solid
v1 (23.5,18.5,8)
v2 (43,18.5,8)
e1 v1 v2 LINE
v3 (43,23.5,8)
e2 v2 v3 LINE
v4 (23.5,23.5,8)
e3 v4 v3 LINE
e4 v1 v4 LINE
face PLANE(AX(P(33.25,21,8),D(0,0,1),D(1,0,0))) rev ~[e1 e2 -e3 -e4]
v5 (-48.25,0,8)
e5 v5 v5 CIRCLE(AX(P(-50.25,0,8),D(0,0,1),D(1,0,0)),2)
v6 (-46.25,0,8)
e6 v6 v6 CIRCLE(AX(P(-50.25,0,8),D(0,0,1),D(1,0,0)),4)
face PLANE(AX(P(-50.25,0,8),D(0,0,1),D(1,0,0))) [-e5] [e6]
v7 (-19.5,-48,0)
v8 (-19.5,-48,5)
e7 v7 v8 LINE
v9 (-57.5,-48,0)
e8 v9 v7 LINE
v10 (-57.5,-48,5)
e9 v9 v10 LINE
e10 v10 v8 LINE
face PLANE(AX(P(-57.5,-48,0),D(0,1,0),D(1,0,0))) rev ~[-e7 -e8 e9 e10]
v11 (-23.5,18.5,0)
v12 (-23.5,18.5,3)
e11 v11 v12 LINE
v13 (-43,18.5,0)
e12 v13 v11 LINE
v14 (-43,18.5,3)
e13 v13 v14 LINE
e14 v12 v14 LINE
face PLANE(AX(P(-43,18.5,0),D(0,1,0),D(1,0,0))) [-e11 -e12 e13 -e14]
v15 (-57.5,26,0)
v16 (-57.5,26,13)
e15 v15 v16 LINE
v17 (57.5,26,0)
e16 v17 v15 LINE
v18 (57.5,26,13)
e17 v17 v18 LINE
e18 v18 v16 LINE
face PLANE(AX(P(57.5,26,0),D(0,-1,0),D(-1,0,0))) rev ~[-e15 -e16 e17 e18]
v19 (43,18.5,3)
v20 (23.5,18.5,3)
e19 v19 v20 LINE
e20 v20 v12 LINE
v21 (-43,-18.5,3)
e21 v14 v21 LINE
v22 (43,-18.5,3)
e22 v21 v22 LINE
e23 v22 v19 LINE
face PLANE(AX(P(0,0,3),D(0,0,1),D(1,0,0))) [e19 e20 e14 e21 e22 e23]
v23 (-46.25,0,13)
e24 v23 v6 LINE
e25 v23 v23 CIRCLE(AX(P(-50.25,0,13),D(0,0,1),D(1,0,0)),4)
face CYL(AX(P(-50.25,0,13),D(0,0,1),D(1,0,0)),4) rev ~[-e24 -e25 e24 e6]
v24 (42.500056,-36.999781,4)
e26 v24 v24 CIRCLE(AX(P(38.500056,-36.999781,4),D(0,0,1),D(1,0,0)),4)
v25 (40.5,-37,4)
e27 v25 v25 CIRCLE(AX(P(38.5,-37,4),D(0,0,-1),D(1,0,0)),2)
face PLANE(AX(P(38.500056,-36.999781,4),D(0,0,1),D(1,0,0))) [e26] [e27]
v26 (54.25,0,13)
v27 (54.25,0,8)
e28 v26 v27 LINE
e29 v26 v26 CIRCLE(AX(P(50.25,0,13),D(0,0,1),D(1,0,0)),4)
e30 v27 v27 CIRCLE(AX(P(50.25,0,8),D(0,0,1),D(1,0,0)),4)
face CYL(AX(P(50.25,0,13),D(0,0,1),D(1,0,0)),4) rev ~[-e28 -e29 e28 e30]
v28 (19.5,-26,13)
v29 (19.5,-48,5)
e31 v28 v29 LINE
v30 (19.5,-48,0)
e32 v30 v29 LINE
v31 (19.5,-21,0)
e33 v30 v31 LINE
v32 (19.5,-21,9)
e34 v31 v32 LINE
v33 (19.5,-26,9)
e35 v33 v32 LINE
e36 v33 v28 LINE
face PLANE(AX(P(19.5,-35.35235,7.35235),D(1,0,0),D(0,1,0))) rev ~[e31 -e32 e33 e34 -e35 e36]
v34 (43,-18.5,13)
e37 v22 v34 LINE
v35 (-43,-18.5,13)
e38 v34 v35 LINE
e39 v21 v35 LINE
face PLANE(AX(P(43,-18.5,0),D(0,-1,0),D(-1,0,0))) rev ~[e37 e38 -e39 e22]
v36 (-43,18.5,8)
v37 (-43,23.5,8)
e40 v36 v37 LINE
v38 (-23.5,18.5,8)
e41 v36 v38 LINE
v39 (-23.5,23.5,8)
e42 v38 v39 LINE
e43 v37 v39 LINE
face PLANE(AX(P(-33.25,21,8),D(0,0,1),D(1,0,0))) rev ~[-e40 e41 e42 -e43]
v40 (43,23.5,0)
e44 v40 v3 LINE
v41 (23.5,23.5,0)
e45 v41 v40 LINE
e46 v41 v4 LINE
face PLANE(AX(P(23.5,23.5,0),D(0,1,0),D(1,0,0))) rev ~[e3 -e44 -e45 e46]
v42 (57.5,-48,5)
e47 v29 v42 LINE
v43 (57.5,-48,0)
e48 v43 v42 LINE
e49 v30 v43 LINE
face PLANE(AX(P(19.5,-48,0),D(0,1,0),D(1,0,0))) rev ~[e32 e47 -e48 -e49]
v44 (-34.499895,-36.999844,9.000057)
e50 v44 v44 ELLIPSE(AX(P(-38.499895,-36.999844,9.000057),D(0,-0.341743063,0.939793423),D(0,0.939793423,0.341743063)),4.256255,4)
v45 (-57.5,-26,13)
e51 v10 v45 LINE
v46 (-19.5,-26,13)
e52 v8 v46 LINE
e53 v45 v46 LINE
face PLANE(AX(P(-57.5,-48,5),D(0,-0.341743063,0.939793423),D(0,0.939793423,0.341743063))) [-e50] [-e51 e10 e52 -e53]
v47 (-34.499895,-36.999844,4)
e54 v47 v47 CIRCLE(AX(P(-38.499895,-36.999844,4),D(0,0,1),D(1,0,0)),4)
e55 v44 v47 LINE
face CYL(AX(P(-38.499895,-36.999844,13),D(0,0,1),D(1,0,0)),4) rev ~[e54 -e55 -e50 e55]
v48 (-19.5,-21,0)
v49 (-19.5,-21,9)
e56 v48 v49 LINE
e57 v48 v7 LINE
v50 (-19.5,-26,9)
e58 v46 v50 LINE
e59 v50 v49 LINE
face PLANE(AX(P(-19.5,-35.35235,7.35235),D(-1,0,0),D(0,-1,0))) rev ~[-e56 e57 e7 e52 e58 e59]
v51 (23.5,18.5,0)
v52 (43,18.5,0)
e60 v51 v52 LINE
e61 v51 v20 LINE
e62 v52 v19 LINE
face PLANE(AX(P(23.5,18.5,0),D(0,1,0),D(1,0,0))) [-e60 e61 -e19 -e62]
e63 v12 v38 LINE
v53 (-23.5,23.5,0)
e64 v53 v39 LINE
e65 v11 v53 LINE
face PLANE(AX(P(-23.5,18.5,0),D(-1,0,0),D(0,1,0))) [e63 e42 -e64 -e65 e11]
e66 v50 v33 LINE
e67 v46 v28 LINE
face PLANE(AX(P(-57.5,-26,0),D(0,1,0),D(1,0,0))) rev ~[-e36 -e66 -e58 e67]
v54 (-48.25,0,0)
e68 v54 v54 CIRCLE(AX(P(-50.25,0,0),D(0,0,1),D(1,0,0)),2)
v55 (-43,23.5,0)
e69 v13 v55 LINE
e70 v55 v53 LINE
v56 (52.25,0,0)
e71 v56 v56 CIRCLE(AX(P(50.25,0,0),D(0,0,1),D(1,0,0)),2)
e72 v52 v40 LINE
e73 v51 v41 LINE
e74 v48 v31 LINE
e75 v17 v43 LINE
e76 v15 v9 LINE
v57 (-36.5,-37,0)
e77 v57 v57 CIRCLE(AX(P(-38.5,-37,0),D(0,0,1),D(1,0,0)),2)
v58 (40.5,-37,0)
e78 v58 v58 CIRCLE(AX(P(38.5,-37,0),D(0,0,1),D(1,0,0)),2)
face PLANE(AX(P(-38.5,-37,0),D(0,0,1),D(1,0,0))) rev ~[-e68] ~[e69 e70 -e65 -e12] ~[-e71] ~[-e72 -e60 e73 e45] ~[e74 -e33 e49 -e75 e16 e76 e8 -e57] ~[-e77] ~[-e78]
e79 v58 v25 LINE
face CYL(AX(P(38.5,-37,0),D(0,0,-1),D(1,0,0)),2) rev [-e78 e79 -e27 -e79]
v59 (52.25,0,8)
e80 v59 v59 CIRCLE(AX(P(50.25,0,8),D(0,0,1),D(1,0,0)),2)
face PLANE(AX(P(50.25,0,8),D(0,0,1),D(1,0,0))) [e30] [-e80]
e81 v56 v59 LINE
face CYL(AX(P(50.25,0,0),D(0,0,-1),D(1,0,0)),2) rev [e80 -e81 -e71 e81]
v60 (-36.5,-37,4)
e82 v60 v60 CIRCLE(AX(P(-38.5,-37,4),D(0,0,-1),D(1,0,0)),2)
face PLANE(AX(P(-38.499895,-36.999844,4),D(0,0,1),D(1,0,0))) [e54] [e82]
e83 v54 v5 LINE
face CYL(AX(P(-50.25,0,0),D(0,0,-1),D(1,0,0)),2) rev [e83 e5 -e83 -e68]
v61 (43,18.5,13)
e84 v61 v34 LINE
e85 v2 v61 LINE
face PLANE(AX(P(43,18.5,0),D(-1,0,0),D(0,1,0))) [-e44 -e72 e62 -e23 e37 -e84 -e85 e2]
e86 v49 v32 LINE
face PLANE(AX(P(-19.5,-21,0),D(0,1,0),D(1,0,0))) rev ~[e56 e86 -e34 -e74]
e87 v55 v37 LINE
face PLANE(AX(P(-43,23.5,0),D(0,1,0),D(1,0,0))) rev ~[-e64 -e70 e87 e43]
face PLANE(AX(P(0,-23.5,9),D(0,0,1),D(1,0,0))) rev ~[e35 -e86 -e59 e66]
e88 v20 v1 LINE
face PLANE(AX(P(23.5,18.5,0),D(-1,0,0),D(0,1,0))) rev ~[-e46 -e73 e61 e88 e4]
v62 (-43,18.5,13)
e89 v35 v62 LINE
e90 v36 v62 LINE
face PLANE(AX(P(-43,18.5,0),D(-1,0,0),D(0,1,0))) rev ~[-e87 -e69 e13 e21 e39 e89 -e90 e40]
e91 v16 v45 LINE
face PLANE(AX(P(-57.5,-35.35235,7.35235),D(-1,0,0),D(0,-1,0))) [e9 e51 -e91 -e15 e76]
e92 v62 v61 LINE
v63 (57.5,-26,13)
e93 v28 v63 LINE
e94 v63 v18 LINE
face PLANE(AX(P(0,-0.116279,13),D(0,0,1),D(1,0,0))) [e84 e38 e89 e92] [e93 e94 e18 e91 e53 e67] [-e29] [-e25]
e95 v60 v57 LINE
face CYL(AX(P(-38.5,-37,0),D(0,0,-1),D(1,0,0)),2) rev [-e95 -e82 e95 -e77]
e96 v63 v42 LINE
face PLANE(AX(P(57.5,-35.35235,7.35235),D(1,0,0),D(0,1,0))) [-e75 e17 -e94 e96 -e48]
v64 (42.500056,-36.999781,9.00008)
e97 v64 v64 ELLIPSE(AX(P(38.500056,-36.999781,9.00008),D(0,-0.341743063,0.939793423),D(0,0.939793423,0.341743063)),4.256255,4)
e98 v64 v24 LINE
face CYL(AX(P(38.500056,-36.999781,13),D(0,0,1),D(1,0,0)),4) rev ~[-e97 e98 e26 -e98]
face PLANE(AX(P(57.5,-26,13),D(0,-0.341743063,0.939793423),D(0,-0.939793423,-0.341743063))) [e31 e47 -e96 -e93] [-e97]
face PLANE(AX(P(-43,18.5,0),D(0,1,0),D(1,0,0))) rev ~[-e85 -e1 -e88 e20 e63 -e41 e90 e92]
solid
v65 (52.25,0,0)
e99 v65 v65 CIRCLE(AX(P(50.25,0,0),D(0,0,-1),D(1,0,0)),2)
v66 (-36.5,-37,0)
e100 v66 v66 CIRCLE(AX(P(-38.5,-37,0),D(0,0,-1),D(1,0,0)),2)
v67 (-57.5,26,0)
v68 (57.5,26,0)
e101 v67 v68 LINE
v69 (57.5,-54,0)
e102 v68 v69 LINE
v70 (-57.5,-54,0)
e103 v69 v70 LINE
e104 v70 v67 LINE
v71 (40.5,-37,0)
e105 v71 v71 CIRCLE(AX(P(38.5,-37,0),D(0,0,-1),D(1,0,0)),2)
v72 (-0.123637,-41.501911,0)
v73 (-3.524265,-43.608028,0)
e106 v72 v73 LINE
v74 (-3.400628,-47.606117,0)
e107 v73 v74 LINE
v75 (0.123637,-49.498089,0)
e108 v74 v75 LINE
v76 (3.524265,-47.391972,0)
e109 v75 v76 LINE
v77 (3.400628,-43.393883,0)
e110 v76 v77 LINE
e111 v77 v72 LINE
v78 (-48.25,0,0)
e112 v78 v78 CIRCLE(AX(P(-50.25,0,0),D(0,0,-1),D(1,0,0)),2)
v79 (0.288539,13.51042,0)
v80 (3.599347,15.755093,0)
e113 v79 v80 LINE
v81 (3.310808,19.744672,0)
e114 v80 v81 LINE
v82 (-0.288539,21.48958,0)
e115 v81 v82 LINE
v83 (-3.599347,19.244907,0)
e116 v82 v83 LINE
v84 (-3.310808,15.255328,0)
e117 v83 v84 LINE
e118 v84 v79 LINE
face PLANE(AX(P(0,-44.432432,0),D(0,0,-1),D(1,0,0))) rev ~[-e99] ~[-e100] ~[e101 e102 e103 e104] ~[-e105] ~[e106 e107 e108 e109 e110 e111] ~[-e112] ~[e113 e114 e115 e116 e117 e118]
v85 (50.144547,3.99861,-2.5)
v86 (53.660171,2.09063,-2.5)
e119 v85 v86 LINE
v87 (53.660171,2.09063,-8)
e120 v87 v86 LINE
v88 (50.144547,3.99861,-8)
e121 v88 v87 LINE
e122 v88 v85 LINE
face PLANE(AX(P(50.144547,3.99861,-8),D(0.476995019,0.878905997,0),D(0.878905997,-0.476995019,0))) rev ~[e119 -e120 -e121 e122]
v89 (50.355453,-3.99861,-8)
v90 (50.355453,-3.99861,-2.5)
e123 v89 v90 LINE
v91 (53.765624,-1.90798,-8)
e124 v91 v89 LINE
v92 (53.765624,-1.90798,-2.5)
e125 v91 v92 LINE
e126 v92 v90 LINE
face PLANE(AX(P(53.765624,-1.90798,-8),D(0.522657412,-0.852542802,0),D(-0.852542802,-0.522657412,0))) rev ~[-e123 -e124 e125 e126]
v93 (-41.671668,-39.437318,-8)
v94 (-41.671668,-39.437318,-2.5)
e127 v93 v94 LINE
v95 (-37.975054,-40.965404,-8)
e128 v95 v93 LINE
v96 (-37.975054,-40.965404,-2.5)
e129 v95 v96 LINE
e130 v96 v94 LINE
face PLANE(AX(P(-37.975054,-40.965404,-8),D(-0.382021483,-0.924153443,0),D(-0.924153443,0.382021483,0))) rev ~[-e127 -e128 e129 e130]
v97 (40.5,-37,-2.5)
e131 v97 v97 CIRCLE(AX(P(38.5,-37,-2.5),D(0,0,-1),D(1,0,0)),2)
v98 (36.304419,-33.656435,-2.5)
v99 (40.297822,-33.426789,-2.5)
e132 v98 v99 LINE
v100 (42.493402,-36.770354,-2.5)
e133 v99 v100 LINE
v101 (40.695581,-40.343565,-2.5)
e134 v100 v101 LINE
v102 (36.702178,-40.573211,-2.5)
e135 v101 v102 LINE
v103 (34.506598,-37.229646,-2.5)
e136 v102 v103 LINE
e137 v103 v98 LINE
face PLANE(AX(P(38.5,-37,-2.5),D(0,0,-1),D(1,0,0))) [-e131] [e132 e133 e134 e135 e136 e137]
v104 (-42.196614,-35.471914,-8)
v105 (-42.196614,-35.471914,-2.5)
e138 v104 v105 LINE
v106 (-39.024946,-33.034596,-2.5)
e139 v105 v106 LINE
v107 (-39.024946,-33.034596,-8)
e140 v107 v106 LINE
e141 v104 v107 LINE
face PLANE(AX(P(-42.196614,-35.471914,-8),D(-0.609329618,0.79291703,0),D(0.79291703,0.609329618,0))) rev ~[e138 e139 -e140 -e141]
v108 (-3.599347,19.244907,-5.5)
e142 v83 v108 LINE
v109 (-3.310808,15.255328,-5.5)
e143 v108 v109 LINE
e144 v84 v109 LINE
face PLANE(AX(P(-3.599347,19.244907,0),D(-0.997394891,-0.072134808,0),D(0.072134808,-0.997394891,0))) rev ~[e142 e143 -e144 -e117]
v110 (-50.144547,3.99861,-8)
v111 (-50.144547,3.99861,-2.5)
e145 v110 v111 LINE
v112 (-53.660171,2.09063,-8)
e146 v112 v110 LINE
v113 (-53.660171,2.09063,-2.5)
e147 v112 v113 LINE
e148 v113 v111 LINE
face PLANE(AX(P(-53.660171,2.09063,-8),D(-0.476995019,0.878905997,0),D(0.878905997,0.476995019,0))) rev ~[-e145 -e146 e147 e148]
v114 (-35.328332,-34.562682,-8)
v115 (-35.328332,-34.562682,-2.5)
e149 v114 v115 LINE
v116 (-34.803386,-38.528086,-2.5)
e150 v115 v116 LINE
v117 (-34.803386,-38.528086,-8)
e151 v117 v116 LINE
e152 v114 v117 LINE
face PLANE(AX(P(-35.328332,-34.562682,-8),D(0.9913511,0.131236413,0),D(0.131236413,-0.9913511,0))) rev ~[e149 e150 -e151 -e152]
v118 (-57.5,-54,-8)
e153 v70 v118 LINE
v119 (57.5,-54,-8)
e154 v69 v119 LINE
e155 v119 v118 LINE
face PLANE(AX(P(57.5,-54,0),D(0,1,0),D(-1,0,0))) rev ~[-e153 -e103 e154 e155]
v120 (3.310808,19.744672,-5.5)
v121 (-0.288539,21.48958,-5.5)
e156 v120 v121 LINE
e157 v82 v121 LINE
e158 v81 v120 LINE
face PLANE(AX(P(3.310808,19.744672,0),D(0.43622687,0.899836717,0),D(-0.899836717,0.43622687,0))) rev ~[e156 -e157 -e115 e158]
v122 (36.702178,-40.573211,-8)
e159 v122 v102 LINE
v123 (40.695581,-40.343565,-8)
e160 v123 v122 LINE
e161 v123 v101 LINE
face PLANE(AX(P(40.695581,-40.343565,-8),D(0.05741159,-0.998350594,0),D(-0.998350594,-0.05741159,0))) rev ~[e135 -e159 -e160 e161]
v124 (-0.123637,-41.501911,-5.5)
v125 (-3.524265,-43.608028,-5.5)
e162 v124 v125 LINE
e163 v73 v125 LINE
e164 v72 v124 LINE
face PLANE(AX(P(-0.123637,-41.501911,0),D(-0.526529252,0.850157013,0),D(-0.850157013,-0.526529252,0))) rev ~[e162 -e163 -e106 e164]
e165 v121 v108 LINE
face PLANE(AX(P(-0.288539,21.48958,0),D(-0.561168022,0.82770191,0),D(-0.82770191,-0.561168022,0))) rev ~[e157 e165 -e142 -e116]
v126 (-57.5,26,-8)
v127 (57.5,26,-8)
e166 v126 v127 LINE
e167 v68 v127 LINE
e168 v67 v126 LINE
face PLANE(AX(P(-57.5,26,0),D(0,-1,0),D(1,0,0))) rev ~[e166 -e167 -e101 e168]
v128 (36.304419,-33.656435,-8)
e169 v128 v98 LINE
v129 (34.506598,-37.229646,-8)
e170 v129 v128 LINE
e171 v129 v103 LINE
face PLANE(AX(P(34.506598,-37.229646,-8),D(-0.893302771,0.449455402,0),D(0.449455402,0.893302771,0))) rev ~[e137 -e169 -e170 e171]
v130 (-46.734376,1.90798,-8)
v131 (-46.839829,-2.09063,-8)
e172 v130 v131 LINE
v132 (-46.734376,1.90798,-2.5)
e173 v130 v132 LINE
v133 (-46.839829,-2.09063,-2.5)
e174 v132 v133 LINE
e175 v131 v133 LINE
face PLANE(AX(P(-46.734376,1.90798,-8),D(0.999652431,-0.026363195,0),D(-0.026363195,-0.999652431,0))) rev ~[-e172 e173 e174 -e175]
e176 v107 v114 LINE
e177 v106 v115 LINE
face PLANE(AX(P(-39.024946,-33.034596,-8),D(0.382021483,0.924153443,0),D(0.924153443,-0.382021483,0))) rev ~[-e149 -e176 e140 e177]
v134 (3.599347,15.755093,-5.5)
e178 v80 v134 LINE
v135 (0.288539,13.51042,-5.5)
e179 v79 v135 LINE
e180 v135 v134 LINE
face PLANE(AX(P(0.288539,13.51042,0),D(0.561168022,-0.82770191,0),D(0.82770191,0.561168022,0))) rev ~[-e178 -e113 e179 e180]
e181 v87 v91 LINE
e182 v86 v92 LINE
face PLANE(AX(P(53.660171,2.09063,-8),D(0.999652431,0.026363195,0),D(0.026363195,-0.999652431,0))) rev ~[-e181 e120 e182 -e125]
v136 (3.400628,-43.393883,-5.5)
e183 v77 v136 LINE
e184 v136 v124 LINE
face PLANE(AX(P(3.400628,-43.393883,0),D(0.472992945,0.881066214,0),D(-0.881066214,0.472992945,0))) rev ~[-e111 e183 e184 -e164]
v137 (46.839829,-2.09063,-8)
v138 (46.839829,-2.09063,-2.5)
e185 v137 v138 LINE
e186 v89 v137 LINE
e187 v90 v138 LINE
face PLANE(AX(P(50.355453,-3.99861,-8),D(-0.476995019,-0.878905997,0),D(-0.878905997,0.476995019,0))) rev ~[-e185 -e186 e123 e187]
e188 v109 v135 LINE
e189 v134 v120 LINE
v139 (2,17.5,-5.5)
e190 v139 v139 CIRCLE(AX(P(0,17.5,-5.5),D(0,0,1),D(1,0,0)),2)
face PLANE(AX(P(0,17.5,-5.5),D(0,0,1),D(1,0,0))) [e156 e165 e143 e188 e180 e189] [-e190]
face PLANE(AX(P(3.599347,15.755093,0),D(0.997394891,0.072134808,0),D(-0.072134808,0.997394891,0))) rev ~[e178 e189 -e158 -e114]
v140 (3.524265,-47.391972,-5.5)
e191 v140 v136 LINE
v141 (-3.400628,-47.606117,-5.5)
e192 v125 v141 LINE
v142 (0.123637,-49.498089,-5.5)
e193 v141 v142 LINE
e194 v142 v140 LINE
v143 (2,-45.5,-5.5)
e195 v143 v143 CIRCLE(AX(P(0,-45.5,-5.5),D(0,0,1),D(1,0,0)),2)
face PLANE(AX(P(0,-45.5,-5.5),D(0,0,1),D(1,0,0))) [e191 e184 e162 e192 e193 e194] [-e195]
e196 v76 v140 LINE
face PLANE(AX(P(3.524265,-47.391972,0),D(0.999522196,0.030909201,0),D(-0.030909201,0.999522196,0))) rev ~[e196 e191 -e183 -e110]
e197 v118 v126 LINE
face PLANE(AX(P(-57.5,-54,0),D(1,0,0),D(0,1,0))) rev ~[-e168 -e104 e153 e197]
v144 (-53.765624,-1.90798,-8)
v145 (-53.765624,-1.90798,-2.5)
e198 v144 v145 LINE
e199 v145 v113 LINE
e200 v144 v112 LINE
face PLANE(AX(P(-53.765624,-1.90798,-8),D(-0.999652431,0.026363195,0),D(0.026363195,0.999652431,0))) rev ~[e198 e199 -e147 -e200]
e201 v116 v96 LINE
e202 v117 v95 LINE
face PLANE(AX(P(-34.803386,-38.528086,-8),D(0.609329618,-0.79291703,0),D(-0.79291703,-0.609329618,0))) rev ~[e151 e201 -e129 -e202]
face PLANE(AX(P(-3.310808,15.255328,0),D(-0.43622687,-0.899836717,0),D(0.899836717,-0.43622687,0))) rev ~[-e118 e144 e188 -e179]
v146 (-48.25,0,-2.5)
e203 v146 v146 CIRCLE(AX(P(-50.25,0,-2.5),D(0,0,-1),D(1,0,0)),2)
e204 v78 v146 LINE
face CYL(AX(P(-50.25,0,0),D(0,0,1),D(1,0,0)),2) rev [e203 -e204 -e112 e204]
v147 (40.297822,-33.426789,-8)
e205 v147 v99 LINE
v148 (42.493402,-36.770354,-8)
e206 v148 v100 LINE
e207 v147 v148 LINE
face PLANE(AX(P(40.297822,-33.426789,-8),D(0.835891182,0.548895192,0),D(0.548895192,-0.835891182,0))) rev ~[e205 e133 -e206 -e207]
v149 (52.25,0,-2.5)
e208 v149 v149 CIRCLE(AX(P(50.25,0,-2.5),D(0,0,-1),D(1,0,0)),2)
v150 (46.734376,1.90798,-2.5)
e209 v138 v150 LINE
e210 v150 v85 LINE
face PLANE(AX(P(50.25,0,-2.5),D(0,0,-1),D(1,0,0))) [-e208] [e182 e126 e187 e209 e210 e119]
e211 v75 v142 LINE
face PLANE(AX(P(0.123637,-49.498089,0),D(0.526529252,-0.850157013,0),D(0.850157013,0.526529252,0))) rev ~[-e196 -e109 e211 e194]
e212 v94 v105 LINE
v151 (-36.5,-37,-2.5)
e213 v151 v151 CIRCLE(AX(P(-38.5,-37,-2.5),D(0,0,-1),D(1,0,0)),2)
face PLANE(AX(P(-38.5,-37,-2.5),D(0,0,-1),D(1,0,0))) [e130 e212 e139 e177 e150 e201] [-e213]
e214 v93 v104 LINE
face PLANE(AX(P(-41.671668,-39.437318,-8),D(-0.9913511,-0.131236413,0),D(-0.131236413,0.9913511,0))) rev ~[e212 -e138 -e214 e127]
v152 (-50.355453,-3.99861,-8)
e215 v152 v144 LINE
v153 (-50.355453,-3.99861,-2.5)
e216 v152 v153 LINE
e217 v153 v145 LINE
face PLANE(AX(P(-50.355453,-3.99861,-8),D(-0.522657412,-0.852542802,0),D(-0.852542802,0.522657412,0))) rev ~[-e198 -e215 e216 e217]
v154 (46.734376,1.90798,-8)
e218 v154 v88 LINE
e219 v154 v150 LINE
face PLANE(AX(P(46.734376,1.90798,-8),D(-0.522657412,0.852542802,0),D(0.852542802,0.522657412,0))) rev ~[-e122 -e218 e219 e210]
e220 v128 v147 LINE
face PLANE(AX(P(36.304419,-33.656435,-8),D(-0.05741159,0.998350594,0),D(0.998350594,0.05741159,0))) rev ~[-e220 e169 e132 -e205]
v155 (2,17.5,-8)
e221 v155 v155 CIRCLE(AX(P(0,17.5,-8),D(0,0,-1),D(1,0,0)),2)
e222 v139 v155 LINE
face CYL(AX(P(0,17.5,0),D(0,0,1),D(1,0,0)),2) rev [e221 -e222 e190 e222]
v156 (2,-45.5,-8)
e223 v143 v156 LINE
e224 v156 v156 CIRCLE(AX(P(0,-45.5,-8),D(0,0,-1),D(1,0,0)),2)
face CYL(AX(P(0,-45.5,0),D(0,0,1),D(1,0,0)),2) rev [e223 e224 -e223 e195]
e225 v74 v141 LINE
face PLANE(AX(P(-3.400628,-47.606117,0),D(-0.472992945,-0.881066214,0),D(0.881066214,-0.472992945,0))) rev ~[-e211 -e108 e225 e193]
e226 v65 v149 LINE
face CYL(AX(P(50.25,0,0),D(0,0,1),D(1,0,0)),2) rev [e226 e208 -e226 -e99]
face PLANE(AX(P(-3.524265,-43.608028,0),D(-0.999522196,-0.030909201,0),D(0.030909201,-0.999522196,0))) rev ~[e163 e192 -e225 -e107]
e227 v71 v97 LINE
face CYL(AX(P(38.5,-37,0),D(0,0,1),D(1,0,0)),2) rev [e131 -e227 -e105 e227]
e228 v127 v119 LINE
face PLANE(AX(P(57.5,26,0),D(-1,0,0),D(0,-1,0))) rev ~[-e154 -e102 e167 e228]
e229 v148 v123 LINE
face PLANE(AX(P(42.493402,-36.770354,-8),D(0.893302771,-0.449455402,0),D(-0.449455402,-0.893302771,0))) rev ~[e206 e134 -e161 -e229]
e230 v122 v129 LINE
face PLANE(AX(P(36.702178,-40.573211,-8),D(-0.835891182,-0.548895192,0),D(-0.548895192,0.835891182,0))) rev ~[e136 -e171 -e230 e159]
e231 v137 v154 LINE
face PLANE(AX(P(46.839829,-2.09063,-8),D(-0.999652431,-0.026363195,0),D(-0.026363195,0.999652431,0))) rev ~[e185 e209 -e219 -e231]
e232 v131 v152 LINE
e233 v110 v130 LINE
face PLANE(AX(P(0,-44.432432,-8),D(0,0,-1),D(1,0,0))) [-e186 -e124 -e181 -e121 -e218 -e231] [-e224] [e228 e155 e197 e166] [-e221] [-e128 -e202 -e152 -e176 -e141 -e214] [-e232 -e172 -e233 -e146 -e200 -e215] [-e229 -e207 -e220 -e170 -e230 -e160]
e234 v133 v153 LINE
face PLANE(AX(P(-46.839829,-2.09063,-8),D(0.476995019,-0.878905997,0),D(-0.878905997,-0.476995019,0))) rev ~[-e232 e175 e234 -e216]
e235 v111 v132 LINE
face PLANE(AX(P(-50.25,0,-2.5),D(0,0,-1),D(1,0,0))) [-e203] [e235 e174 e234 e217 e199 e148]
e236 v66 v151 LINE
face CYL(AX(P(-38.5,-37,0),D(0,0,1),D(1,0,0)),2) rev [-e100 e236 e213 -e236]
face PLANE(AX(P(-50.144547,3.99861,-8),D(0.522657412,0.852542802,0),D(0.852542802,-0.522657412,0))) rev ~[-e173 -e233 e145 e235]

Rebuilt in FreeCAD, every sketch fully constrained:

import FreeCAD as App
import Part
import Sketcher

V = App.Vector
Q = App.Units.Quantity

doc = App.newDocument("Part")
params = doc.addObject("Spreadsheet::Sheet", "Params")
for row, (alias, value) in enumerate([
    ("sketch1_diameter", "4 mm"),
    ("sketch1_width", "115 mm"),
    ("sketch1_width2", "86 mm"),
    ("sketch1_height", "52 mm"),
    ("sketch1_height2", "37 mm"),
    ("pad1_length", "13 mm"),
    ("sketch2_width", "86 mm"),
    ("sketch2_height", "37 mm"),
    ("pad2_length", "3 mm"),
    ("sketch3_height", "5 mm"),
    ("sketch3_width", "19.5 mm"),
    ("pocket1_length", "8 mm"),
    ("sketch4_diameter", "4 mm"),
    ("sketch4_width", "38 mm"),
    ("sketch4_height", "22 mm"),
    ("pad3_length", "5 mm"),
    ("sketch5_width", "39 mm"),
    ("sketch5_height", "5 mm"),
    ("pocket2_length", "9 mm"),
    ("sketch6_width", "22 mm"),
    ("sketch6_height", "8 mm"),
    ("pad4_length", "38 mm"),
    ("sketch7_width", "22 mm"),
    ("sketch7_height", "8 mm"),
    ("pad5_length", "38 mm"),
    ("sketch8_diameter", "8 mm"),
    ("sketch8_diameter2", "4 mm"),
    ("pocket3_length", "5 mm"),
    ("sketch9_diameter", "4 mm"),
    ("pocket4_length", "25 mm"),
    ("sketch10_diameter", "8 mm"),
    ("pocket5_length", "9 mm"),
    ("sketch11_diameter", "4 mm"),
    ("sketch11_width", "115 mm"),
    ("sketch11_height", "80 mm"),
    ("pad6_length", "8 mm"),
    ("sketch12_diameter", "4 mm"),
    ("sketch12_length", "4 mm"),
    ("pocket6_length", "5.5 mm"),
    ("sketch13_diameter", "4 mm"),
    ("sketch13_length", "4 mm"),
    ("pocket7_length", "5.5 mm"),
], start=1):
    params.set(f"A{row}", alias)
    params.set(f"B{row}", "=" + value)
    params.setAlias(f"B{row}", alias)

body = doc.addObject("PartDesign::Body", "Body")

# Sketch on XY plane
sketch1 = doc.addObject("Sketcher::SketchObject", "Sketch")
body.addObject(sketch1)
sketch1.AttachmentSupport = (doc.XY_Plane, [""])
sketch1.MapMode = "FlatFace"
sketch1.addGeometry([
    Part.LineSegment(V(57.5, -26, 0), V(57.5, 26, 0)),  # 0
    Part.LineSegment(V(57.5, 26, 0), V(-57.5, 26, 0)),  # 1
    Part.LineSegment(V(-57.5, 26, 0), V(-57.5, -26, 0)),  # 2
    Part.LineSegment(V(-57.5, -26, 0), V(57.5, -26, 0)),  # 3
    Part.Circle(V(-50.2, 0, 0), V(0, 0, 1), 2),  # 4
    Part.Circle(V(50.2, 0, 0), V(0, 0, 1), 2),  # 5
    Part.LineSegment(V(43, 18.5, 0), V(43, -18.5, 0)),  # 6
    Part.LineSegment(V(43, -18.5, 0), V(-43, -18.5, 0)),  # 7
    Part.LineSegment(V(-43, -18.5, 0), V(-43, 18.5, 0)),  # 8
    Part.LineSegment(V(-43, 18.5, 0), V(43, 18.5, 0)),  # 9
], False)
sketch1.addConstraint([
    Sketcher.Constraint("Coincident", 0, 2, 1, 1),
    Sketcher.Constraint("Coincident", 1, 2, 2, 1),
    Sketcher.Constraint("Coincident", 2, 2, 3, 1),
    Sketcher.Constraint("Coincident", 3, 2, 0, 1),
    Sketcher.Constraint("Coincident", 6, 2, 7, 1),
    Sketcher.Constraint("Coincident", 7, 2, 8, 1),
    Sketcher.Constraint("Coincident", 8, 2, 9, 1),
    Sketcher.Constraint("Coincident", 9, 2, 6, 1),
    Sketcher.Constraint("Vertical", 0),
    Sketcher.Constraint("Horizontal", 1),
    Sketcher.Constraint("Vertical", 2),
    Sketcher.Constraint("Horizontal", 3),
    Sketcher.Constraint("Vertical", 6),
    Sketcher.Constraint("Horizontal", 7),
    Sketcher.Constraint("Vertical", 8),
    Sketcher.Constraint("Horizontal", 9),
    Sketcher.Constraint("Equal", 4, 5),
    Sketcher.Constraint("Symmetric", 4, 3, 5, 3, -1, 1),
    Sketcher.Constraint("Symmetric", 0, 2, 2, 2, -1, 1),
    Sketcher.Constraint("Symmetric", 6, 2, 8, 2, -1, 1),
    Sketcher.Constraint("PointOnObject", 4, 3, -1),
    Sketcher.Constraint("Diameter", 4, Q("4 mm")),
    Sketcher.Constraint("DistanceX", 1, 2, 1, 1, Q("115 mm")),
    Sketcher.Constraint("DistanceX", 7, 2, 7, 1, Q("86 mm")),
    Sketcher.Constraint("DistanceY", 0, 1, 0, 2, Q("52 mm")),
    Sketcher.Constraint("DistanceY", 6, 2, 6, 1, Q("37 mm")),
    Sketcher.Constraint("DistanceX", 4, 3, 5, 3, Q("100.5 mm")),
])
sketch1.setExpression("Constraints[21]", "Params.sketch1_diameter")
sketch1.setExpression("Constraints[22]", "Params.sketch1_width")
sketch1.setExpression("Constraints[23]", "Params.sketch1_width2")
sketch1.setExpression("Constraints[24]", "Params.sketch1_height")
sketch1.setExpression("Constraints[25]", "Params.sketch1_height2")
pad1 = doc.addObject("PartDesign::Pad", "Pad")
body.addObject(pad1)
pad1.Profile = sketch1
pad1.setExpression("Length", "Params.pad1_length")

# Sketch on XY plane
sketch2 = doc.addObject("Sketcher::SketchObject", "Sketch001")
body.addObject(sketch2)
sketch2.AttachmentSupport = (doc.XY_Plane, [""])
sketch2.MapMode = "FlatFace"
sketch2.addGeometry([
    Part.LineSegment(V(-43, -18, 0), V(43, -18, 0)),
    Part.LineSegment(V(43, -18, 0), V(43, 18, 0)),
    Part.LineSegment(V(43, 18, 0), V(-43, 18, 0)),
    Part.LineSegment(V(-43, 18, 0), V(-43, -18, 0)),
], False)
sketch2.addConstraint([
    Sketcher.Constraint("Coincident", 0, 2, 1, 1),
    Sketcher.Constraint("Coincident", 1, 2, 2, 1),
    Sketcher.Constraint("Coincident", 2, 2, 3, 1),
    Sketcher.Constraint("Coincident", 3, 2, 0, 1),
    Sketcher.Constraint("Horizontal", 0),
    Sketcher.Constraint("Vertical", 1),
    Sketcher.Constraint("Horizontal", 2),
    Sketcher.Constraint("Vertical", 3),
    Sketcher.Constraint("Symmetric", 0, 2, 2, 2, -1, 1),
    Sketcher.Constraint("DistanceX", 0, 1, 0, 2, Q("86 mm")),
    Sketcher.Constraint("DistanceY", 1, 1, 1, 2, Q("37 mm")),
])
sketch2.setExpression("Constraints[9]", "Params.sketch2_width")
sketch2.setExpression("Constraints[10]", "Params.sketch2_height")
pad2 = doc.addObject("PartDesign::Pad", "Pad001")
body.addObject(pad2)
pad2.Profile = sketch2
pad2.setExpression("Length", "Params.pad2_length")

# Sketch on XY plane
sketch3 = doc.addObject("Sketcher::SketchObject", "Sketch002")
body.addObject(sketch3)
sketch3.AttachmentSupport = (doc.XY_Plane, [""])
sketch3.MapMode = "FlatFace"
sketch3.addGeometry([
    Part.LineSegment(V(-43, 24, 0), V(-43, 18, 0)),  # 0
    Part.LineSegment(V(-43, 18, 0), V(-24, 18, 0)),  # 1
    Part.LineSegment(V(-24, 18, 0), V(-24, 24, 0)),  # 2
    Part.LineSegment(V(-24, 24, 0), V(-43, 24, 0)),  # 3
    Part.LineSegment(V(24, 24, 0), V(24, 18, 0)),  # 4
    Part.LineSegment(V(24, 18, 0), V(43, 18, 0)),  # 5
    Part.LineSegment(V(43, 18, 0), V(43, 24, 0)),  # 6
    Part.LineSegment(V(43, 24, 0), V(24, 24, 0)),  # 7
], False)
sketch3.addConstraint([
    Sketcher.Constraint("Coincident", 0, 2, 1, 1),
    Sketcher.Constraint("Coincident", 1, 2, 2, 1),
    Sketcher.Constraint("Coincident", 2, 2, 3, 1),
    Sketcher.Constraint("Coincident", 3, 2, 0, 1),
    Sketcher.Constraint("Coincident", 4, 2, 5, 1),
    Sketcher.Constraint("Coincident", 5, 2, 6, 1),
    Sketcher.Constraint("Coincident", 6, 2, 7, 1),
    Sketcher.Constraint("Coincident", 7, 2, 4, 1),
    Sketcher.Constraint("Vertical", 0),
    Sketcher.Constraint("Horizontal", 1),
    Sketcher.Constraint("Vertical", 2),
    Sketcher.Constraint("Horizontal", 3),
    Sketcher.Constraint("Vertical", 4),
    Sketcher.Constraint("Horizontal", 5),
    Sketcher.Constraint("Vertical", 6),
    Sketcher.Constraint("Horizontal", 7),
    Sketcher.Constraint("Symmetric", 1, 2, 4, 2, -2),
    Sketcher.Constraint("Symmetric", 3, 2, 6, 2, -2),
    Sketcher.Constraint("DistanceY", 0, 2, 0, 1, Q("5 mm")),
    Sketcher.Constraint("DistanceX", 1, 1, 1, 2, Q("19.5 mm")),
    Sketcher.Constraint("DistanceX", 0, 2, -1, 1, Q("43 mm")),
    Sketcher.Constraint("DistanceY", -1, 1, 0, 2, Q("18.5 mm")),
])
sketch3.setExpression("Constraints[18]", "Params.sketch3_height")
sketch3.setExpression("Constraints[19]", "Params.sketch3_width")
pocket1 = doc.addObject("PartDesign::Pocket", "Pocket")
body.addObject(pocket1)
pocket1.Profile = sketch3
pocket1.setExpression("Length", "Params.pocket1_length")
pocket1.Reversed = True

# Sketch on XY plane
sketch4 = doc.addObject("Sketcher::SketchObject", "Sketch003")
body.addObject(sketch4)
sketch4.AttachmentSupport = (doc.XY_Plane, [""])
sketch4.MapMode = "FlatFace"
sketch4.addGeometry([
    Part.LineSegment(V(-57.5, -26, 0), V(-57.5, -48, 0)),  # 0
    Part.LineSegment(V(-57.5, -48, 0), V(-19.5, -48, 0)),  # 1
    Part.LineSegment(V(-19.5, -48, 0), V(-19.5, -26, 0)),  # 2
    Part.LineSegment(V(-19.5, -26, 0), V(-57.5, -26, 0)),  # 3
    Part.Circle(V(-38.5, -37, 0), V(0, 0, 1), 2),  # 4
    Part.LineSegment(V(19.5, -26, 0), V(19.5, -48, 0)),  # 5
    Part.LineSegment(V(19.5, -48, 0), V(57.5, -48, 0)),  # 6
    Part.LineSegment(V(57.5, -48, 0), V(57.5, -26, 0)),  # 7
    Part.LineSegment(V(57.5, -26, 0), V(19.5, -26, 0)),  # 8
    Part.Circle(V(38.5, -37, 0), V(0, 0, 1), 2),  # 9
], False)
sketch4.addConstraint([
    Sketcher.Constraint("Coincident", 0, 2, 1, 1),
    Sketcher.Constraint("Coincident", 1, 2, 2, 1),
    Sketcher.Constraint("Coincident", 2, 2, 3, 1),
    Sketcher.Constraint("Coincident", 3, 2, 0, 1),
    Sketcher.Constraint("Coincident", 5, 2, 6, 1),
    Sketcher.Constraint("Coincident", 6, 2, 7, 1),
    Sketcher.Constraint("Coincident", 7, 2, 8, 1),
    Sketcher.Constraint("Coincident", 8, 2, 5, 1),
    Sketcher.Constraint("Vertical", 0),
    Sketcher.Constraint("Horizontal", 1),
    Sketcher.Constraint("Vertical", 2),
    Sketcher.Constraint("Horizontal", 3),
    Sketcher.Constraint("Vertical", 5),
    Sketcher.Constraint("Horizontal", 6),
    Sketcher.Constraint("Vertical", 7),
    Sketcher.Constraint("Horizontal", 8),
    Sketcher.Constraint("Equal", 4, 9),
    Sketcher.Constraint("Symmetric", 4, 3, 9, 3, -2),
    Sketcher.Constraint("Symmetric", 1, 2, 5, 2, -2),
    Sketcher.Constraint("Symmetric", 3, 2, 7, 2, -2),
    Sketcher.Constraint("Diameter", 4, Q("4 mm")),
    Sketcher.Constraint("DistanceX", 1, 1, 1, 2, Q("38 mm")),
    Sketcher.Constraint("DistanceY", 0, 2, 0, 1, Q("22 mm")),
    Sketcher.Constraint("DistanceY", 4, 3, -1, 1, Q("37 mm")),
    Sketcher.Constraint("DistanceY", 0, 2, -1, 1, Q("48 mm")),
    Sketcher.Constraint("DistanceX", 4, 3, 9, 3, Q("77 mm")),
    Sketcher.Constraint("DistanceX", 0, 2, 4, 3, Q("19 mm")),
])
sketch4.setExpression("Constraints[20]", "Params.sketch4_diameter")
sketch4.setExpression("Constraints[21]", "Params.sketch4_width")
sketch4.setExpression("Constraints[22]", "Params.sketch4_height")
pad3 = doc.addObject("PartDesign::Pad", "Pad002")
body.addObject(pad3)
pad3.Profile = sketch4
pad3.setExpression("Length", "Params.pad3_length")

# Sketch on XY plane
sketch5 = doc.addObject("Sketcher::SketchObject", "Sketch004")
body.addObject(sketch5)
sketch5.AttachmentSupport = (doc.XY_Plane, [""])
sketch5.MapMode = "FlatFace"
sketch5.addGeometry([
    Part.LineSegment(V(-20, -21, 0), V(-20, -26, 0)),
    Part.LineSegment(V(-20, -26, 0), V(20, -26, 0)),
    Part.LineSegment(V(20, -26, 0), V(20, -21, 0)),
    Part.LineSegment(V(20, -21, 0), V(-20, -21, 0)),
], False)
sketch5.addConstraint([
    Sketcher.Constraint("Coincident", 0, 2, 1, 1),
    Sketcher.Constraint("Coincident", 1, 2, 2, 1),
    Sketcher.Constraint("Coincident", 2, 2, 3, 1),
    Sketcher.Constraint("Coincident", 3, 2, 0, 1),
    Sketcher.Constraint("Vertical", 0),
    Sketcher.Constraint("Horizontal", 1),
    Sketcher.Constraint("Vertical", 2),
    Sketcher.Constraint("Horizontal", 3),
    Sketcher.Constraint("DistanceX", 1, 1, 1, 2, Q("39 mm")),
    Sketcher.Constraint("DistanceY", 0, 2, 0, 1, Q("5 mm")),
    Sketcher.Constraint("DistanceY", 0, 2, -1, 1, Q("26 mm")),
    Sketcher.Constraint("DistanceX", 0, 2, -1, 1, Q("19.5 mm")),
])
sketch5.setExpression("Constraints[8]", "Params.sketch5_width")
sketch5.setExpression("Constraints[9]", "Params.sketch5_height")
pocket2 = doc.addObject("PartDesign::Pocket", "Pocket001")
body.addObject(pocket2)
pocket2.Profile = sketch5
pocket2.setExpression("Length", "Params.pocket2_length")
pocket2.Reversed = True

# Sketch on YZ plane
sketch6 = doc.addObject("Sketcher::SketchObject", "Sketch005")
body.addObject(sketch6)
sketch6.AttachmentSupport = (doc.YZ_Plane, [""])
sketch6.MapMode = "FlatFace"
sketch6.AttachmentOffset = App.Placement(V(0, 0, 57.5), App.Rotation())
sketch6.addGeometry([
    Part.LineSegment(V(-26, 5, 0), V(-26, 13, 0)),
    Part.LineSegment(V(-26, 13, 0), V(-48, 5, 0)),
    Part.LineSegment(V(-48, 5, 0), V(-26, 5, 0)),
], False)
sketch6.addConstraint([
    Sketcher.Constraint("Coincident", 0, 2, 1, 1),
    Sketcher.Constraint("Coincident", 1, 2, 2, 1),
    Sketcher.Constraint("Coincident", 2, 2, 0, 1),
    Sketcher.Constraint("Vertical", 0),
    Sketcher.Constraint("Horizontal", 2),
    Sketcher.Constraint("DistanceX", 2, 1, 2, 2, Q("22 mm")),
    Sketcher.Constraint("DistanceY", 0, 1, 0, 2, Q("8 mm")),
    Sketcher.Constraint("DistanceX", 0, 2, -1, 1, Q("26 mm")),
    Sketcher.Constraint("DistanceY", -1, 1, 0, 2, Q("13 mm")),
])
sketch6.setExpression("Constraints[5]", "Params.sketch6_width")
sketch6.setExpression("Constraints[6]", "Params.sketch6_height")
pad4 = doc.addObject("PartDesign::Pad", "Pad003")
body.addObject(pad4)
pad4.Profile = sketch6
pad4.setExpression("Length", "Params.pad4_length")
pad4.Reversed = True

# Sketch on YZ plane
sketch7 = doc.addObject("Sketcher::SketchObject", "Sketch006")
body.addObject(sketch7)
sketch7.AttachmentSupport = (doc.YZ_Plane, [""])
sketch7.MapMode = "FlatFace"
sketch7.AttachmentOffset = App.Placement(V(0, 0, -57.5), App.Rotation())
sketch7.addGeometry([
    Part.LineSegment(V(-48, 5, 0), V(-26, 13, 0)),
    Part.LineSegment(V(-26, 13, 0), V(-26, 5, 0)),
    Part.LineSegment(V(-26, 5, 0), V(-48, 5, 0)),
], False)
sketch7.addConstraint([
    Sketcher.Constraint("Coincident", 0, 2, 1, 1),
    Sketcher.Constraint("Coincident", 1, 2, 2, 1),
    Sketcher.Constraint("Coincident", 2, 2, 0, 1),
    Sketcher.Constraint("Vertical", 1),
    Sketcher.Constraint("Horizontal", 2),
    Sketcher.Constraint("DistanceX", 2, 2, 2, 1, Q("22 mm")),
    Sketcher.Constraint("DistanceY", 1, 2, 1, 1, Q("8 mm")),
    Sketcher.Constraint("DistanceX", 0, 2, -1, 1, Q("26 mm")),
    Sketcher.Constraint("DistanceY", -1, 1, 0, 2, Q("13 mm")),
])
sketch7.setExpression("Constraints[5]", "Params.sketch7_width")
sketch7.setExpression("Constraints[6]", "Params.sketch7_height")
pad5 = doc.addObject("PartDesign::Pad", "Pad004")
body.addObject(pad5)
pad5.Profile = sketch7
pad5.setExpression("Length", "Params.pad5_length")

# Sketch on XY plane
sketch8 = doc.addObject("Sketcher::SketchObject", "Sketch007")
body.addObject(sketch8)
sketch8.AttachmentSupport = (doc.XY_Plane, [""])
sketch8.MapMode = "FlatFace"
sketch8.AttachmentOffset = App.Placement(V(0, 0, 13), App.Rotation())
sketch8.addGeometry([
    Part.Circle(V(-50.2, 0, 0), V(0, 0, 1), 4),
    Part.Circle(V(-50.2, 0, 0), V(0, 0, 1), 2),
    Part.Circle(V(50.2, 0, 0), V(0, 0, 1), 4),
    Part.Circle(V(50.2, 0, 0), V(0, 0, 1), 2),
], False)
sketch8.addConstraint([
    Sketcher.Constraint("Coincident", 1, 3, 0, 3),
    Sketcher.Constraint("Coincident", 3, 3, 2, 3),
    Sketcher.Constraint("Equal", 0, 2),
    Sketcher.Constraint("Equal", 1, 3),
    Sketcher.Constraint("Symmetric", 0, 3, 2, 3, -1, 1),
    Sketcher.Constraint("PointOnObject", 0, 3, -1),
    Sketcher.Constraint("Diameter", 0, Q("8 mm")),
    Sketcher.Constraint("Diameter", 1, Q("4 mm")),
    Sketcher.Constraint("DistanceX", 0, 3, 2, 3, Q("100.5 mm")),
])
sketch8.setExpression("Constraints[6]", "Params.sketch8_diameter")
sketch8.setExpression("Constraints[7]", "Params.sketch8_diameter2")
pocket3 = doc.addObject("PartDesign::Pocket", "Pocket002")
body.addObject(pocket3)
pocket3.Profile = sketch8
pocket3.setExpression("Length", "Params.pocket3_length")

# Sketch on XY plane
sketch9 = doc.addObject("Sketcher::SketchObject", "Sketch008")
body.addObject(sketch9)
sketch9.AttachmentSupport = (doc.XY_Plane, [""])
sketch9.MapMode = "FlatFace"
sketch9.addGeometry([
    Part.Circle(V(38.5, -37, 0), V(0, 0, 1), 2),
    Part.Circle(V(-38.5, -37, 0), V(0, 0, 1), 2),
], False)
sketch9.addConstraint([
    Sketcher.Constraint("Equal", 0, 1),
    Sketcher.Constraint("Symmetric", 0, 3, 1, 3, -2),
    Sketcher.Constraint("Diameter", 0, Q("4 mm")),
    Sketcher.Constraint("DistanceY", 0, 3, -1, 1, Q("37 mm")),
    Sketcher.Constraint("DistanceX", 1, 3, 0, 3, Q("77 mm")),
])
sketch9.setExpression("Constraints[2]", "Params.sketch9_diameter")
pocket4 = doc.addObject("PartDesign::Pocket", "Pocket003")
body.addObject(pocket4)
pocket4.Profile = sketch9
pocket4.setExpression("Length", "Params.pocket4_length")
pocket4.Reversed = True

# Sketch on XY plane
sketch10 = doc.addObject("Sketcher::SketchObject", "Sketch009")
body.addObject(sketch10)
sketch10.AttachmentSupport = (doc.XY_Plane, [""])
sketch10.MapMode = "FlatFace"
sketch10.AttachmentOffset = App.Placement(V(0, 0, 13), App.Rotation())
sketch10.addGeometry([
    Part.Circle(V(-38.5, -37, 0), V(0, 0, 1), 4),
    Part.Circle(V(38.5, -37, 0), V(0, 0, 1), 4),
], False)
sketch10.addConstraint([
    Sketcher.Constraint("Equal", 0, 1),
    Sketcher.Constraint("Diameter", 0, Q("8 mm")),
    Sketcher.Constraint("DistanceY", 1, 3, -1, 1, Q("36.999781 mm")),
    Sketcher.Constraint("DistanceX", 0, 3, 1, 3, Q("76.999951 mm")),
    Sketcher.Constraint("DistanceX", 0, 3, -1, 1, Q("38.499895 mm")),
    Sketcher.Constraint("DistanceY", 0, 3, -1, 1, Q("36.999844 mm")),
])
sketch10.setExpression("Constraints[1]", "Params.sketch10_diameter")
pocket5 = doc.addObject("PartDesign::Pocket", "Pocket004")
body.addObject(pocket5)
pocket5.Profile = sketch10
pocket5.setExpression("Length", "Params.pocket5_length")
body2 = doc.addObject("PartDesign::Body", "Body001")

# Sketch on XY plane
sketch11 = doc.addObject("Sketcher::SketchObject", "Sketch010")
body2.addObject(sketch11)
sketch11.AttachmentSupport = (doc.getObject("XY_Plane001"), [""])
sketch11.MapMode = "FlatFace"
sketch11.addGeometry([
    Part.LineSegment(V(57.5, -54, 0), V(-57.5, -54, 0)),  # 0
    Part.LineSegment(V(-57.5, -54, 0), V(-57.5, 26, 0)),  # 1
    Part.LineSegment(V(-57.5, 26, 0), V(57.5, 26, 0)),  # 2
    Part.LineSegment(V(57.5, 26, 0), V(57.5, -54, 0)),  # 3
    Part.Circle(V(-50.2, 0, 0), V(0, 0, 1), 2),  # 4
    Part.Circle(V(0, 17.5, 0), V(0, 0, 1), 2),  # 5
    Part.Circle(V(50.2, 0, 0), V(0, 0, 1), 2),  # 6
    Part.Circle(V(-38.5, -37, 0), V(0, 0, 1), 2),  # 7
    Part.Circle(V(0, -45.5, 0), V(0, 0, 1), 2),  # 8
    Part.Circle(V(38.5, -37, 0), V(0, 0, 1), 2),  # 9
], False)
sketch11.addConstraint([
    Sketcher.Constraint("Coincident", 0, 2, 1, 1),
    Sketcher.Constraint("Coincident", 1, 2, 2, 1),
    Sketcher.Constraint("Coincident", 2, 2, 3, 1),
    Sketcher.Constraint("Coincident", 3, 2, 0, 1),
    Sketcher.Constraint("Horizontal", 0),
    Sketcher.Constraint("Vertical", 1),
    Sketcher.Constraint("Horizontal", 2),
    Sketcher.Constraint("Vertical", 3),
    Sketcher.Constraint("Equal", 4, 5),
    Sketcher.Constraint("Equal", 5, 6),
    Sketcher.Constraint("Equal", 6, 7),
    Sketcher.Constraint("Equal", 7, 8),
    Sketcher.Constraint("Equal", 8, 9),
    Sketcher.Constraint("Symmetric", 4, 3, 6, 3, -1, 1),
    Sketcher.Constraint("Symmetric", 7, 3, 9, 3, -2),
    Sketcher.Constraint("PointOnObject", 4, 3, -1),
    Sketcher.Constraint("PointOnObject", 5, 3, -2),
    Sketcher.Constraint("PointOnObject", 8, 3, -2),
    Sketcher.Constraint("Diameter", 4, Q("4 mm")),
    Sketcher.Constraint("DistanceX", 0, 2, 0, 1, Q("115 mm")),
    Sketcher.Constraint("DistanceY", 1, 1, 1, 2, Q("80 mm")),
    Sketcher.Constraint("DistanceY", 7, 3, -1, 1, Q("37 mm")),
    Sketcher.Constraint("DistanceY", 0, 2, -1, 1, Q("54 mm")),
    Sketcher.Constraint("DistanceY", 8, 3, 5, 3, Q("63 mm")),
    Sketcher.Constraint("DistanceX", 7, 3, 9, 3, Q("77 mm")),
    Sketcher.Constraint("DistanceX", 0, 2, 7, 3, Q("19 mm")),
    Sketcher.Constraint("DistanceY", -1, 1, 5, 3, Q("17.5 mm")),
    Sketcher.Constraint("DistanceX", 4, 3, 6, 3, Q("100.5 mm")),
])
sketch11.setExpression("Constraints[18]", "Params.sketch11_diameter")
sketch11.setExpression("Constraints[19]", "Params.sketch11_width")
sketch11.setExpression("Constraints[20]", "Params.sketch11_height")
pad6 = doc.addObject("PartDesign::Pad", "Pad005")
body2.addObject(pad6)
pad6.Profile = sketch11
pad6.setExpression("Length", "Params.pad6_length")
pad6.Reversed = True

# Sketch on XY plane
sketch12 = doc.addObject("Sketcher::SketchObject", "Sketch011")
body2.addObject(sketch12)
sketch12.AttachmentSupport = (doc.getObject("XY_Plane001"), [""])
sketch12.MapMode = "FlatFace"
sketch12.addGeometry([
    Part.LineSegment(V(0.3, 13.5, 0), V(3.6, 15.8, 0)),  # 0
    Part.LineSegment(V(3.6, 15.8, 0), V(3.3, 19.7, 0)),  # 1
    Part.LineSegment(V(3.3, 19.7, 0), V(-0.3, 21.5, 0)),  # 2
    Part.LineSegment(V(-0.3, 21.5, 0), V(-3.6, 19.2, 0)),  # 3
    Part.LineSegment(V(-3.6, 19.2, 0), V(-3.3, 15.3, 0)),  # 4
    Part.LineSegment(V(-3.3, 15.3, 0), V(0.3, 13.5, 0)),  # 5
    Part.Circle(V(0, 17.5, 0), V(0, 0, 1), 2),  # 6
    Part.LineSegment(V(0.1, -49.5, 0), V(3.5, -47.4, 0)),  # 7
    Part.LineSegment(V(3.5, -47.4, 0), V(3.4, -43.4, 0)),  # 8
    Part.LineSegment(V(3.4, -43.4, 0), V(-0.1, -41.5, 0)),  # 9
    Part.LineSegment(V(-0.1, -41.5, 0), V(-3.5, -43.6, 0)),  # 10
    Part.LineSegment(V(-3.5, -43.6, 0), V(-3.4, -47.6, 0)),  # 11
    Part.LineSegment(V(-3.4, -47.6, 0), V(0.1, -49.5, 0)),  # 12
    Part.Circle(V(0, -45.5, 0), V(0, 0, 1), 2),  # 13
], False)
sketch12.addConstraint([
    Sketcher.Constraint("Coincident", 0, 2, 1, 1),
    Sketcher.Constraint("Coincident", 1, 2, 2, 1),
    Sketcher.Constraint("Coincident", 2, 2, 3, 1),
    Sketcher.Constraint("Coincident", 3, 2, 4, 1),
    Sketcher.Constraint("Coincident", 4, 2, 5, 1),
    Sketcher.Constraint("Coincident", 5, 2, 0, 1),
    Sketcher.Constraint("Coincident", 7, 2, 8, 1),
    Sketcher.Constraint("Coincident", 8, 2, 9, 1),
    Sketcher.Constraint("Coincident", 9, 2, 10, 1),
    Sketcher.Constraint("Coincident", 10, 2, 11, 1),
    Sketcher.Constraint("Coincident", 11, 2, 12, 1),
    Sketcher.Constraint("Coincident", 12, 2, 7, 1),
    Sketcher.Constraint("Equal", 6, 13),
    Sketcher.Constraint("PointOnObject", 6, 3, -2),
    Sketcher.Constraint("PointOnObject", 13, 3, -2),
    Sketcher.Constraint("Parallel", 0, 3),
    Sketcher.Constraint("Parallel", 1, 4),
    Sketcher.Constraint("Parallel", 2, 5),
    Sketcher.Constraint("Parallel", 7, 10),
    Sketcher.Constraint("Parallel", 8, 11),
    Sketcher.Constraint("Parallel", 9, 12),
    Sketcher.Constraint("Equal", 0, 1),
    Sketcher.Constraint("Equal", 1, 2),
    Sketcher.Constraint("Equal", 2, 3),
    Sketcher.Constraint("Equal", 5, 7),
    Sketcher.Constraint("Equal", 7, 8),
    Sketcher.Constraint("Equal", 8, 9),
    Sketcher.Constraint("Equal", 9, 10),
    Sketcher.Constraint("Diameter", 6, Q("4 mm")),
    Sketcher.Constraint("Distance", 0, Q("4 mm")),
    Sketcher.Constraint("DistanceY", 13, 3, 6, 3, Q("63 mm")),
    Sketcher.Constraint("DistanceY", -1, 1, 6, 3, Q("17.5 mm")),
    Sketcher.Constraint("DistanceY", 7, 2, 4, 2, Q("62.6473 mm")),
    Sketcher.Constraint("DistanceX", 9, 2, 7, 2, Q("3.647902 mm")),
    Sketcher.Constraint("DistanceX", 2, 2, -1, 1, Q("0.288539 mm")),
    Sketcher.Constraint("DistanceY", -1, 1, 2, 2, Q("21.48958 mm")),
    Sketcher.Constraint("DistanceX", -1, 1, 5, 2, Q("0.288539 mm")),
    Sketcher.Constraint("DistanceY", -1, 1, 5, 2, Q("13.51042 mm")),
    Sketcher.Constraint("DistanceY", 7, 2, -1, 1, Q("47.391972 mm")),
    Sketcher.Constraint("DistanceX", -1, 1, 8, 2, Q("3.400628 mm")),
    Sketcher.Constraint("DistanceY", 9, 2, -1, 1, Q("41.501911 mm")),
    Sketcher.Constraint("DistanceY", 10, 2, -1, 1, Q("43.608028 mm")),
])
sketch12.setExpression("Constraints[28]", "Params.sketch12_diameter")
sketch12.setExpression("Constraints[29]", "Params.sketch12_length")
pocket6 = doc.addObject("PartDesign::Pocket", "Pocket005")
body2.addObject(pocket6)
pocket6.Profile = sketch12
pocket6.setExpression("Length", "Params.pocket6_length")

# Sketch on XY plane
sketch13 = doc.addObject("Sketcher::SketchObject", "Sketch012")
body2.addObject(sketch13)
sketch13.AttachmentSupport = (doc.getObject("XY_Plane001"), [""])
sketch13.MapMode = "FlatFace"
sketch13.AttachmentOffset = App.Placement(V(0, 0, -8), App.Rotation())
sketch13.addGeometry([
    Part.LineSegment(V(-39, -33, 0), V(-35.3, -34.6, 0)),  # 0
    Part.LineSegment(V(-35.3, -34.6, 0), V(-34.8, -38.5, 0)),  # 1
    Part.LineSegment(V(-34.8, -38.5, 0), V(-38, -41, 0)),  # 2
    Part.LineSegment(V(-38, -41, 0), V(-41.7, -39.4, 0)),  # 3
    Part.LineSegment(V(-41.7, -39.4, 0), V(-42.2, -35.5, 0)),  # 4
    Part.LineSegment(V(-42.2, -35.5, 0), V(-39, -33, 0)),  # 5
    Part.Circle(V(-38.5, -37, 0), V(0, 0, 1), 2),  # 6
    Part.LineSegment(V(34.5, -37.2, 0), V(36.3, -33.7, 0)),  # 7
    Part.LineSegment(V(36.3, -33.7, 0), V(40.3, -33.4, 0)),  # 8
    Part.LineSegment(V(40.3, -33.4, 0), V(42.5, -36.8, 0)),  # 9
    Part.LineSegment(V(42.5, -36.8, 0), V(40.7, -40.3, 0)),  # 10
    Part.LineSegment(V(40.7, -40.3, 0), V(36.7, -40.6, 0)),  # 11
    Part.LineSegment(V(36.7, -40.6, 0), V(34.5, -37.2, 0)),  # 12
    Part.Circle(V(38.5, -37, 0), V(0, 0, 1), 2),  # 13
    Part.LineSegment(V(46.8, -2.1, 0), V(46.7, 1.9, 0)),  # 14
    Part.LineSegment(V(46.7, 1.9, 0), V(50.1, 4, 0)),  # 15
    Part.LineSegment(V(50.1, 4, 0), V(53.7, 2.1, 0)),  # 16
    Part.LineSegment(V(53.7, 2.1, 0), V(53.8, -1.9, 0)),  # 17
    Part.LineSegment(V(53.8, -1.9, 0), V(50.4, -4, 0)),  # 18
    Part.LineSegment(V(50.4, -4, 0), V(46.8, -2.1, 0)),  # 19
    Part.Circle(V(50.2, 0, 0), V(0, 0, 1), 2),  # 20
    Part.LineSegment(V(-50.1, 4, 0), V(-46.7, 1.9, 0)),  # 21
    Part.LineSegment(V(-46.7, 1.9, 0), V(-46.8, -2.1, 0)),  # 22
    Part.LineSegment(V(-46.8, -2.1, 0), V(-50.4, -4, 0)),  # 23
    Part.LineSegment(V(-50.4, -4, 0), V(-53.8, -1.9, 0)),  # 24
    Part.LineSegment(V(-53.8, -1.9, 0), V(-53.7, 2.1, 0)),  # 25
    Part.LineSegment(V(-53.7, 2.1, 0), V(-50.1, 4, 0)),  # 26
    Part.Circle(V(-50.2, 0, 0), V(0, 0, 1), 2),  # 27
], False)
sketch13.addConstraint([
    Sketcher.Constraint("Coincident", 0, 2, 1, 1),
    Sketcher.Constraint("Coincident", 1, 2, 2, 1),
    Sketcher.Constraint("Coincident", 2, 2, 3, 1),
    Sketcher.Constraint("Coincident", 3, 2, 4, 1),
    Sketcher.Constraint("Coincident", 4, 2, 5, 1),
    Sketcher.Constraint("Coincident", 5, 2, 0, 1),
    Sketcher.Constraint("Coincident", 7, 2, 8, 1),
    Sketcher.Constraint("Coincident", 8, 2, 9, 1),
    Sketcher.Constraint("Coincident", 9, 2, 10, 1),
    Sketcher.Constraint("Coincident", 10, 2, 11, 1),
    Sketcher.Constraint("Coincident", 11, 2, 12, 1),
    Sketcher.Constraint("Coincident", 12, 2, 7, 1),
    Sketcher.Constraint("Coincident", 14, 2, 15, 1),
    Sketcher.Constraint("Coincident", 15, 2, 16, 1),
    Sketcher.Constraint("Coincident", 16, 2, 17, 1),
    Sketcher.Constraint("Coincident", 17, 2, 18, 1),
    Sketcher.Constraint("Coincident", 18, 2, 19, 1),
    Sketcher.Constraint("Coincident", 19, 2, 14, 1),
    Sketcher.Constraint("Coincident", 21, 2, 22, 1),
    Sketcher.Constraint("Coincident", 22, 2, 23, 1),
    Sketcher.Constraint("Coincident", 23, 2, 24, 1),
    Sketcher.Constraint("Coincident", 24, 2, 25, 1),
    Sketcher.Constraint("Coincident", 25, 2, 26, 1),
    Sketcher.Constraint("Coincident", 26, 2, 21, 1),
    Sketcher.Constraint("Equal", 6, 13),
    Sketcher.Constraint("Equal", 13, 20),
    Sketcher.Constraint("Equal", 20, 27),
    Sketcher.Constraint("Symmetric", 20, 3, 27, 3, -1, 1),
    Sketcher.Constraint("Symmetric", 6, 3, 13, 3, -2),
    Sketcher.Constraint("Symmetric", 14, 2, 21, 2, -2),
    Sketcher.Constraint("Symmetric", 19, 2, 22, 2, -2),
    Sketcher.Constraint("Symmetric", 18, 2, 23, 2, -2),
    Sketcher.Constraint("Symmetric", 17, 2, 24, 2, -2),
    Sketcher.Constraint("Symmetric", 16, 2, 25, 2, -2),
    Sketcher.Constraint("Symmetric", 15, 2, 26, 2, -2),
    Sketcher.Constraint("PointOnObject", 20, 3, -1),
    Sketcher.Constraint("Parallel", 0, 3),
    Sketcher.Constraint("Parallel", 1, 4),
    Sketcher.Constraint("Parallel", 2, 5),
    Sketcher.Constraint("Parallel", 7, 10),
    Sketcher.Constraint("Parallel", 8, 11),
    Sketcher.Constraint("Parallel", 9, 12),
    Sketcher.Constraint("Parallel", 14, 17),
    Sketcher.Constraint("Parallel", 15, 18),
    Sketcher.Constraint("Parallel", 16, 19),
    Sketcher.Constraint("Equal", 0, 1),
    Sketcher.Constraint("Equal", 1, 2),
    Sketcher.Constraint("Equal", 2, 3),
    Sketcher.Constraint("Equal", 5, 7),
    Sketcher.Constraint("Equal", 7, 8),
    Sketcher.Constraint("Equal", 8, 9),
    Sketcher.Constraint("Equal", 9, 10),
    Sketcher.Constraint("Equal", 12, 14),
    Sketcher.Constraint("Equal", 14, 15),
    Sketcher.Constraint("Equal", 15, 16),
    Sketcher.Constraint("Equal", 16, 17),
    Sketcher.Constraint("Diameter", 6, Q("4 mm")),
    Sketcher.Constraint("Distance", 0, Q("4 mm")),
    Sketcher.Constraint("DistanceY", 6, 3, -1, 1, Q("37 mm")),
    Sketcher.Constraint("DistanceX", 6, 3, 13, 3, Q("77 mm")),
    Sketcher.Constraint("DistanceX", 27, 3, 20, 3, Q("100.5 mm")),
    Sketcher.Constraint("DistanceY", 8, 2, 15, 2, Q("37.425399 mm")),
    Sketcher.Constraint("DistanceX", 0, 2, -1, 1, Q("35.328332 mm")),
    Sketcher.Constraint("DistanceY", 0, 2, -1, 1, Q("34.562682 mm")),
    Sketcher.Constraint("DistanceX", 3, 2, -1, 1, Q("41.671668 mm")),
    Sketcher.Constraint("DistanceY", 3, 2, -1, 1, Q("39.437318 mm")),
    Sketcher.Constraint("DistanceX", -1, 1, 7, 2, Q("36.304419 mm")),
    Sketcher.Constraint("DistanceX", -1, 1, 8, 2, Q("40.297822 mm")),
    Sketcher.Constraint("DistanceY", 8, 2, -1, 1, Q("33.426789 mm")),
    Sketcher.Constraint("DistanceX", -1, 1, 10, 2, Q("40.695581 mm")),
    Sketcher.Constraint("DistanceY", 11, 2, -1, 1, Q("40.573211 mm")),
    Sketcher.Constraint("DistanceY", -1, 1, 14, 2, Q("1.90798 mm")),
    Sketcher.Constraint("DistanceX", -1, 1, 16, 2, Q("53.660171 mm")),
    Sketcher.Constraint("DistanceY", -1, 1, 16, 2, Q("2.09063 mm")),
    Sketcher.Constraint("DistanceY", 17, 2, -1, 1, Q("1.90798 mm")),
    Sketcher.Constraint("DistanceX", 2, 2, 1, 2, Q("3.171668 mm")),
])
sketch13.setExpression("Constraints[56]", "Params.sketch13_diameter")
sketch13.setExpression("Constraints[57]", "Params.sketch13_length")
pocket7 = doc.addObject("PartDesign::Pocket", "Pocket006")
body2.addObject(pocket7)
pocket7.Profile = sketch13
pocket7.setExpression("Length", "Params.pocket7_length")
pocket7.Reversed = True

doc.recompute()
